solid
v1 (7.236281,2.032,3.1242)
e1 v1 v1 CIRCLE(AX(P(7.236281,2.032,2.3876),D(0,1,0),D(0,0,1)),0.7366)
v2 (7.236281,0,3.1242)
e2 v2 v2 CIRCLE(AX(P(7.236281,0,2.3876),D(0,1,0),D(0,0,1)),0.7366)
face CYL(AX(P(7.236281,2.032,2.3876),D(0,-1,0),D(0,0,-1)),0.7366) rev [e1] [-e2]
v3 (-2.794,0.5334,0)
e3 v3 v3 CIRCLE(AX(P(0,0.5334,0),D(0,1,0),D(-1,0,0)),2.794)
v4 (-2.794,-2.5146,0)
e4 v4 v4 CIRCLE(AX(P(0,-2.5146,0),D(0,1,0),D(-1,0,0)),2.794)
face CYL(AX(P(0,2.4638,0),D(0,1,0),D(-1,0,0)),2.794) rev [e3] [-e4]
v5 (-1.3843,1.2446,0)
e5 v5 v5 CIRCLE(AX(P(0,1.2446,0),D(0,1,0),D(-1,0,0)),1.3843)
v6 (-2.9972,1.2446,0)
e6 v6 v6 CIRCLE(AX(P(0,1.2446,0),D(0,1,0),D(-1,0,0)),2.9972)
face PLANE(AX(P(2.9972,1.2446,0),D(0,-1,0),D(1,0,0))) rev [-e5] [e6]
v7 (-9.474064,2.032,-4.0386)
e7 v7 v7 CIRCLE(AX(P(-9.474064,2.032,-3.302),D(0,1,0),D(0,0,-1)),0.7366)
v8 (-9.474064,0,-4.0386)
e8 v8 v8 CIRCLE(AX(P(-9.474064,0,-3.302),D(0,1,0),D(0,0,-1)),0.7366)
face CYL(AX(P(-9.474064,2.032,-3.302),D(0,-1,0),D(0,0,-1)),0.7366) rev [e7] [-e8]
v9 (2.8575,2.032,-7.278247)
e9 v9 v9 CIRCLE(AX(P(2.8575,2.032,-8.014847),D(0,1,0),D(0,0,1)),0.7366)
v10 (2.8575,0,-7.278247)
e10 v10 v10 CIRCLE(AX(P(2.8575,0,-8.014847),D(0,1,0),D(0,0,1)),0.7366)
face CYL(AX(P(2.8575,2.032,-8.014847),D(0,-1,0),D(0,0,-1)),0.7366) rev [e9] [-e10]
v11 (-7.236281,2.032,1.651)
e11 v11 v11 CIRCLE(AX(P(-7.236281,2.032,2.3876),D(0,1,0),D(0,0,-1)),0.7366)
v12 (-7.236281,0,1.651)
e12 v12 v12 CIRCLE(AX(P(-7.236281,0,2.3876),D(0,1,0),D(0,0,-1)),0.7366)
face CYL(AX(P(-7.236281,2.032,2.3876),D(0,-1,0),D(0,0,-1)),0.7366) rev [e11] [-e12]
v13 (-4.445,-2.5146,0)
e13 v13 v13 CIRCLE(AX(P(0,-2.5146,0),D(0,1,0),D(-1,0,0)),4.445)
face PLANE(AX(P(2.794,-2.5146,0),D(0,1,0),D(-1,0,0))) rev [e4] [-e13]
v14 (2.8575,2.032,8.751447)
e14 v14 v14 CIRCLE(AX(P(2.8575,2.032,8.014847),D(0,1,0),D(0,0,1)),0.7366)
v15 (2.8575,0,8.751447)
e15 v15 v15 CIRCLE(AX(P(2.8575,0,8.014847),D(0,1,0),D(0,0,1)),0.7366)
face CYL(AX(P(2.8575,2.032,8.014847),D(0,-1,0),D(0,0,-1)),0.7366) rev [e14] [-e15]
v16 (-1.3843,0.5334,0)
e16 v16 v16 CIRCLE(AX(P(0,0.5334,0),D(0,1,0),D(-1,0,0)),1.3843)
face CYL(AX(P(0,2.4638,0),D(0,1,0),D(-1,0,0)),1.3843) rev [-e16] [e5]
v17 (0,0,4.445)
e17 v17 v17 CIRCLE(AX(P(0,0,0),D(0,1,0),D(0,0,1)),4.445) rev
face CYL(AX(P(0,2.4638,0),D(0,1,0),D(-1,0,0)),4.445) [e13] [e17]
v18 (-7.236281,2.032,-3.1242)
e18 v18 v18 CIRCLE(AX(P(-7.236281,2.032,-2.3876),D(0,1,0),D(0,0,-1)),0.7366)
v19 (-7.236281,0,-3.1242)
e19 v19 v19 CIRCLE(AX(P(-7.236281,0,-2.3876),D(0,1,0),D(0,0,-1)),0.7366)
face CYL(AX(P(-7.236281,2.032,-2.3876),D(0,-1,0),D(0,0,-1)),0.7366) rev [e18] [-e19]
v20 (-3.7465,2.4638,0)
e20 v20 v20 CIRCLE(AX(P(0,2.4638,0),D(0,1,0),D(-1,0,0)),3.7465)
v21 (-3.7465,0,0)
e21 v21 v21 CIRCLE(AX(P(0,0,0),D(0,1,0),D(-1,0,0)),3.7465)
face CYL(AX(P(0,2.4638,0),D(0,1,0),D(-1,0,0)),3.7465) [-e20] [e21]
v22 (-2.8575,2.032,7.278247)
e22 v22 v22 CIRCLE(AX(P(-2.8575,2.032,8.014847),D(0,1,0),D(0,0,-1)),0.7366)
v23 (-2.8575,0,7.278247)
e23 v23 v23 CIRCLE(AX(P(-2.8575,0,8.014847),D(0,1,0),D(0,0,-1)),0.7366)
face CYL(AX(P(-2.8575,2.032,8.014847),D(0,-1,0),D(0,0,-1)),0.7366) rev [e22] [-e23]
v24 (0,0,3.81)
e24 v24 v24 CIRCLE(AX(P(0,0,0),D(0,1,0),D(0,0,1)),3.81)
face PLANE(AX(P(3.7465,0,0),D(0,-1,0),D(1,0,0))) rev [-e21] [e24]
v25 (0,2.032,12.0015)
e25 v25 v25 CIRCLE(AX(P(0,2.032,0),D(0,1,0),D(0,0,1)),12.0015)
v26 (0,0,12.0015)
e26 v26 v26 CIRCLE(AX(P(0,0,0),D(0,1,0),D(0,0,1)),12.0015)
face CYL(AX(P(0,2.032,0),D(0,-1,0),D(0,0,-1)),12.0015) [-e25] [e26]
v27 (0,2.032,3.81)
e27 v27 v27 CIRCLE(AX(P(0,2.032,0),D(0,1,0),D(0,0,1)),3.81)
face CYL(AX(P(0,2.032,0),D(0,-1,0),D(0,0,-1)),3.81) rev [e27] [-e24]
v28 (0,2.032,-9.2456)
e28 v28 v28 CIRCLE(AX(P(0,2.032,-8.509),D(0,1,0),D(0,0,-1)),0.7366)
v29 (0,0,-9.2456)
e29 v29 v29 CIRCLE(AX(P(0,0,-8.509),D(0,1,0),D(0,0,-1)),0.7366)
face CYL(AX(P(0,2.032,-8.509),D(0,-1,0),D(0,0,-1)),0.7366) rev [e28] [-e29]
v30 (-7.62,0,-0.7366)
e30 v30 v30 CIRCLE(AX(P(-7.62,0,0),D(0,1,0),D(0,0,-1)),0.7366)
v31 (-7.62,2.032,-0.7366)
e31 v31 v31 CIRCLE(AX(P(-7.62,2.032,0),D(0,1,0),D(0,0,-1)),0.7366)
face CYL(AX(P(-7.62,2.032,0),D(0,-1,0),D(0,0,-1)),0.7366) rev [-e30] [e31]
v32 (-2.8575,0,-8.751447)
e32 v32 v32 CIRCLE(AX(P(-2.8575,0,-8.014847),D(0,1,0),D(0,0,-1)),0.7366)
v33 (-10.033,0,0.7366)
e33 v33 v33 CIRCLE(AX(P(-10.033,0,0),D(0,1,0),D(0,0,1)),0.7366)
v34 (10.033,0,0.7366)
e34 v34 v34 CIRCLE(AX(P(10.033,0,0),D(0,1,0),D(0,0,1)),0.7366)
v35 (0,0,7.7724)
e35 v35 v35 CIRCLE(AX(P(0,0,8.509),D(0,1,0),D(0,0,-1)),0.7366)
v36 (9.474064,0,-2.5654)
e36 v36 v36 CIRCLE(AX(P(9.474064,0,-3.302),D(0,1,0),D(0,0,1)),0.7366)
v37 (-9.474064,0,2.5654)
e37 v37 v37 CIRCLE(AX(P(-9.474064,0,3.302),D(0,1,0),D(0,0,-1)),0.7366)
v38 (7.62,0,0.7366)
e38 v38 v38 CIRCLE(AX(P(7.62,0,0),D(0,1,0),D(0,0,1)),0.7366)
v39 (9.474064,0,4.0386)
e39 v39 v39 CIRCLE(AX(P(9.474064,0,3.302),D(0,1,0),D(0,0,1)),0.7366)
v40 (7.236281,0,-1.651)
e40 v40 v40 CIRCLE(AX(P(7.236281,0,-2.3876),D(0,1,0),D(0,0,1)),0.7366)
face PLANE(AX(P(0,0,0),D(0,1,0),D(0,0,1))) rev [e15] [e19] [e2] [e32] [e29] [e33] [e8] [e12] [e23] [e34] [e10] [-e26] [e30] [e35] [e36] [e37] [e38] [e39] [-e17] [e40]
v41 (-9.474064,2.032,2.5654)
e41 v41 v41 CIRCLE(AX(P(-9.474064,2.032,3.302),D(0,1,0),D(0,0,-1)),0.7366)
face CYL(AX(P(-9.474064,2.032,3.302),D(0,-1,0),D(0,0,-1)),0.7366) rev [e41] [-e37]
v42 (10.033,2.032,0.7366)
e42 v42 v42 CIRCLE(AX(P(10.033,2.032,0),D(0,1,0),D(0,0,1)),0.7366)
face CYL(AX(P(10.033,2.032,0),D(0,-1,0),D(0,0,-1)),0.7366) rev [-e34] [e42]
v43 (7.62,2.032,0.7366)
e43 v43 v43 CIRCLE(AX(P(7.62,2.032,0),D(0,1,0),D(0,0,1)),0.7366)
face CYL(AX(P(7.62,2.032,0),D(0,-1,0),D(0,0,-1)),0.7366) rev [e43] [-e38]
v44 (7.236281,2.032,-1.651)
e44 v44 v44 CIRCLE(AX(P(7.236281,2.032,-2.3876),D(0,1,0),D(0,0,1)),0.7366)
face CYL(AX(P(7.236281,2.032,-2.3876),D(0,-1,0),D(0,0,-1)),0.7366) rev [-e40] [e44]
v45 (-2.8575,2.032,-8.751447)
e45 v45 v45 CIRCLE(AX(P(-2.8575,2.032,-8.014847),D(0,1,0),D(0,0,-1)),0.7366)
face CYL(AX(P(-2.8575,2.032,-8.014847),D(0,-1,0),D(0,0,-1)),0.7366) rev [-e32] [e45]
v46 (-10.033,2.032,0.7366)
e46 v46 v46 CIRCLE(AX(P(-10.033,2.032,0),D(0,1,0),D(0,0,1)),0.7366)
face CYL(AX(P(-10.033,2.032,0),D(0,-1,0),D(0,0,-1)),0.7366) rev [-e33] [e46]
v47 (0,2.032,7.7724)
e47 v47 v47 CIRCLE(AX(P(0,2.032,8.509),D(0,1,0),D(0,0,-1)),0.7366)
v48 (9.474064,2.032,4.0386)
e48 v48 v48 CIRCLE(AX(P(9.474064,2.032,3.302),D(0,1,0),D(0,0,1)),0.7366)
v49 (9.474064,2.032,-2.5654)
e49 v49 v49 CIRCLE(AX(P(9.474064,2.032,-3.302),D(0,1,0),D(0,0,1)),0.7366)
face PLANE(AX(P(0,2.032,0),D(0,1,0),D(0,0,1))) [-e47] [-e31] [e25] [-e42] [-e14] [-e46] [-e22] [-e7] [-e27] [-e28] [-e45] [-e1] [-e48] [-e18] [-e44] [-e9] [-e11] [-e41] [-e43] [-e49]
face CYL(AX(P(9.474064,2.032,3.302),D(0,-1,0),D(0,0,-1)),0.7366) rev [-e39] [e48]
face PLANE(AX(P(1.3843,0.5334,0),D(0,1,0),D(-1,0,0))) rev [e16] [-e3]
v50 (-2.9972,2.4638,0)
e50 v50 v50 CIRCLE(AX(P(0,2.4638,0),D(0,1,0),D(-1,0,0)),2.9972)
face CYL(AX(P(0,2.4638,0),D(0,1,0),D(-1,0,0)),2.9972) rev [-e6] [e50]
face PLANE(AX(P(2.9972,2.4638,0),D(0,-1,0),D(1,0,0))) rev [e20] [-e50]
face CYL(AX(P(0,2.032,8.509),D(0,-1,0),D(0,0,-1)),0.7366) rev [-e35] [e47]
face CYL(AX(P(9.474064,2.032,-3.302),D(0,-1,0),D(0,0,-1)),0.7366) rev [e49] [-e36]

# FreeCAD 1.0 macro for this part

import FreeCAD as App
import Part
import Sketcher
Q = App.Units.Quantity

doc = App.newDocument("Part")
body = doc.addObject("PartDesign::Body", "Body")

# Sketch on XZ plane
sketch1 = doc.addObject("Sketcher::SketchObject", "Sketch")
body.addObject(sketch1)
sketch1.AttachmentSupport = (doc.XZ_Plane, [""])
sketch1.MapMode = "FlatFace"
sketch1.addGeometry(Part.Circle(App.Vector(0, 0, 0), App.Vector(0, 0, 1), 12), False)
sketch1.addGeometry(Part.Circle(App.Vector(-9.5, -3.3, 0), App.Vector(0, 0, 1), 0.7), False)
sketch1.addGeometry(Part.Circle(App.Vector(-7.2, -2.4, 0), App.Vector(0, 0, 1), 0.7), False)
sketch1.addGeometry(Part.Circle(App.Vector(-2.9, -8, 0), App.Vector(0, 0, 1), 0.7), False)
sketch1.addGeometry(Part.Circle(App.Vector(0, -8.5, 0), App.Vector(0, 0, 1), 0.7), False)
sketch1.addGeometry(Part.Circle(App.Vector(-10, 0, 0), App.Vector(0, 0, 1), 0.7), False)
sketch1.addGeometry(Part.Circle(App.Vector(-9.5, 3.3, 0), App.Vector(0, 0, 1), 0.7), False)
sketch1.addGeometry(Part.Circle(App.Vector(-7.6, 0, 0), App.Vector(0, 0, 1), 0.7), False)
sketch1.addGeometry(Part.Circle(App.Vector(-7.2, 2.4, 0), App.Vector(0, 0, 1), 0.7), False)
sketch1.addGeometry(Part.Circle(App.Vector(0, 0, 0), App.Vector(0, 0, 1), 3.8), False)
sketch1.addGeometry(Part.Circle(App.Vector(-2.9, 8, 0), App.Vector(0, 0, 1), 0.7), False)
sketch1.addGeometry(Part.Circle(App.Vector(2.9, -8, 0), App.Vector(0, 0, 1), 0.7), False)
sketch1.addGeometry(Part.Circle(App.Vector(7.2, -2.4, 0), App.Vector(0, 0, 1), 0.7), False)
sketch1.addGeometry(Part.Circle(App.Vector(7.6, 0, 0), App.Vector(0, 0, 1), 0.7), False)
sketch1.addGeometry(Part.Circle(App.Vector(9.5, -3.3, 0), App.Vector(0, 0, 1), 0.7), False)
sketch1.addGeometry(Part.Circle(App.Vector(10, 0, 0), App.Vector(0, 0, 1), 0.7), False)
sketch1.addGeometry(Part.Circle(App.Vector(0, 8.5, 0), App.Vector(0, 0, 1), 0.7), False)
sketch1.addGeometry(Part.Circle(App.Vector(2.9, 8, 0), App.Vector(0, 0, 1), 0.7), False)
sketch1.addGeometry(Part.Circle(App.Vector(7.2, 2.4, 0), App.Vector(0, 0, 1), 0.7), False)
sketch1.addGeometry(Part.Circle(App.Vector(9.5, 3.3, 0), App.Vector(0, 0, 1), 0.7), False)
sketch1.addConstraint(Sketcher.Constraint("Coincident", 0, 3, -1, 1))
sketch1.addConstraint(Sketcher.Constraint("Coincident", 9, 3, -1, 1))
sketch1.addConstraint(Sketcher.Constraint("Equal", 1, 2))
sketch1.addConstraint(Sketcher.Constraint("Equal", 2, 3))
sketch1.addConstraint(Sketcher.Constraint("Equal", 3, 4))
sketch1.addConstraint(Sketcher.Constraint("Equal", 4, 5))
sketch1.addConstraint(Sketcher.Constraint("Equal", 5, 6))
sketch1.addConstraint(Sketcher.Constraint("Equal", 6, 7))
sketch1.addConstraint(Sketcher.Constraint("Equal", 7, 8))
sketch1.addConstraint(Sketcher.Constraint("Equal", 8, 10))
sketch1.addConstraint(Sketcher.Constraint("Equal", 10, 11))
sketch1.addConstraint(Sketcher.Constraint("Equal", 11, 12))
sketch1.addConstraint(Sketcher.Constraint("Equal", 12, 13))
sketch1.addConstraint(Sketcher.Constraint("Equal", 13, 14))
sketch1.addConstraint(Sketcher.Constraint("Equal", 14, 15))
sketch1.addConstraint(Sketcher.Constraint("Equal", 15, 16))
sketch1.addConstraint(Sketcher.Constraint("Equal", 16, 17))
sketch1.addConstraint(Sketcher.Constraint("Equal", 17, 18))
sketch1.addConstraint(Sketcher.Constraint("Equal", 18, 19))
sketch1.addConstraint(Sketcher.Constraint("Symmetric", 10, 3, 11, 3, -1, 1))
sketch1.addConstraint(Sketcher.Constraint("Symmetric", 8, 3, 12, 3, -1, 1))
sketch1.addConstraint(Sketcher.Constraint("Symmetric", 7, 3, 13, 3, -1, 1))
sketch1.addConstraint(Sketcher.Constraint("Symmetric", 6, 3, 14, 3, -1, 1))
sketch1.addConstraint(Sketcher.Constraint("Symmetric", 5, 3, 15, 3, -1, 1))
sketch1.addConstraint(Sketcher.Constraint("Symmetric", 4, 3, 16, 3, -1, 1))
sketch1.addConstraint(Sketcher.Constraint("Symmetric", 3, 3, 17, 3, -1, 1))
sketch1.addConstraint(Sketcher.Constraint("Symmetric", 2, 3, 18, 3, -1, 1))
sketch1.addConstraint(Sketcher.Constraint("Symmetric", 1, 3, 19, 3, -1, 1))
sketch1.addConstraint(Sketcher.Constraint("Symmetric", 3, 3, 11, 3, -2))
sketch1.addConstraint(Sketcher.Constraint("Symmetric", 2, 3, 12, 3, -2))
sketch1.addConstraint(Sketcher.Constraint("Symmetric", 1, 3, 14, 3, -2))
sketch1.addConstraint(Sketcher.Constraint("PointOnObject", 4, 3, -2))
sketch1.addConstraint(Sketcher.Constraint("PointOnObject", 5, 3, -1))
sketch1.addConstraint(Sketcher.Constraint("PointOnObject", 7, 3, -1))
sketch1.addConstraint(Sketcher.Constraint("Diameter", 9, Q("0.3 in")))
sketch1.addConstraint(Sketcher.Constraint("Diameter", 0, Q("0.945 in")))
sketch1.addConstraint(Sketcher.Constraint("Diameter", 1, Q("0.058 in")))
sketch1.addConstraint(Sketcher.Constraint("DistanceX", 7, 3, -1, 1, Q("0.3 in")))
sketch1.addConstraint(Sketcher.Constraint("DistanceY", 1, 3, -1, 1, Q("0.13 in")))
sketch1.addConstraint(Sketcher.Constraint("DistanceY", 2, 3, -1, 1, Q("0.094 in")))
sketch1.addConstraint(Sketcher.Constraint("DistanceY", 4, 3, -1, 1, Q("0.335 in")))
sketch1.addConstraint(Sketcher.Constraint("DistanceX", 5, 3, -1, 1, Q("0.395 in")))
sketch1.addConstraint(Sketcher.Constraint("DistanceX", 7, 3, 10, 3, Q("0.1875 in")))
sketch1.addConstraint(Sketcher.Constraint("DistanceX", 2, 3, -1, 1, Q("7.236281 mm")))
sketch1.addConstraint(Sketcher.Constraint("DistanceX", 1, 3, -1, 1, Q("9.474064 mm")))
sketch1.addConstraint(Sketcher.Constraint("DistanceY", 3, 3, -1, 1, Q("8.014847 mm")))
pad1 = doc.addObject("PartDesign::Pad", "Pad")
body.addObject(pad1)
pad1.Profile = sketch1
pad1.Length = Q("0.08 in")
pad1.Reversed = True

# Sketch on XY plane
sketch2 = doc.addObject("Sketcher::SketchObject", "Sketch001")
body.addObject(sketch2)
sketch2.AttachmentSupport = (doc.XY_Plane, [""])
sketch2.MapMode = "FlatFace"
sketch2.addGeometry(Part.LineSegment(App.Vector(1.4, 0.5, 0), App.Vector(2.8, 0.5, 0)), False)
sketch2.addGeometry(Part.LineSegment(App.Vector(2.8, 0.5, 0), App.Vector(2.8, -2.5, 0)), False)
sketch2.addGeometry(Part.LineSegment(App.Vector(2.8, -2.5, 0), App.Vector(4.4, -2.5, 0)), False)
sketch2.addGeometry(Part.LineSegment(App.Vector(4.4, -2.5, 0), App.Vector(4.4, 0, 0)), False)
sketch2.addGeometry(Part.LineSegment(App.Vector(4.4, 0, 0), App.Vector(3.7, 0, 0)), False)
sketch2.addGeometry(Part.LineSegment(App.Vector(3.7, 0, 0), App.Vector(3.7, 2.5, 0)), False)
sketch2.addGeometry(Part.LineSegment(App.Vector(3.7, 2.5, 0), App.Vector(3, 2.5, 0)), False)
sketch2.addGeometry(Part.LineSegment(App.Vector(3, 2.5, 0), App.Vector(3, 1.2, 0)), False)
sketch2.addGeometry(Part.LineSegment(App.Vector(3, 1.2, 0), App.Vector(1.4, 1.2, 0)), False)
sketch2.addGeometry(Part.LineSegment(App.Vector(1.4, 1.2, 0), App.Vector(1.4, 0.5, 0)), False)
sketch2.addConstraint(Sketcher.Constraint("Coincident", 0, 2, 1, 1))
sketch2.addConstraint(Sketcher.Constraint("Coincident", 1, 2, 2, 1))
sketch2.addConstraint(Sketcher.Constraint("Coincident", 2, 2, 3, 1))
sketch2.addConstraint(Sketcher.Constraint("Coincident", 3, 2, 4, 1))
sketch2.addConstraint(Sketcher.Constraint("Coincident", 4, 2, 5, 1))
sketch2.addConstraint(Sketcher.Constraint("Coincident", 5, 2, 6, 1))
sketch2.addConstraint(Sketcher.Constraint("Coincident", 6, 2, 7, 1))
sketch2.addConstraint(Sketcher.Constraint("Coincident", 7, 2, 8, 1))
sketch2.addConstraint(Sketcher.Constraint("Coincident", 8, 2, 9, 1))
sketch2.addConstraint(Sketcher.Constraint("Coincident", 9, 2, 0, 1))
sketch2.addConstraint(Sketcher.Constraint("Horizontal", 0))
sketch2.addConstraint(Sketcher.Constraint("Vertical", 1))
sketch2.addConstraint(Sketcher.Constraint("Horizontal", 2))
sketch2.addConstraint(Sketcher.Constraint("Vertical", 3))
sketch2.addConstraint(Sketcher.Constraint("Horizontal", 4))
sketch2.addConstraint(Sketcher.Constraint("Vertical", 5))
sketch2.addConstraint(Sketcher.Constraint("Horizontal", 6))
sketch2.addConstraint(Sketcher.Constraint("Vertical", 7))
sketch2.addConstraint(Sketcher.Constraint("Horizontal", 8))
sketch2.addConstraint(Sketcher.Constraint("Vertical", 9))
sketch2.addConstraint(Sketcher.Constraint("PointOnObject", 3, 2, -1))
sketch2.addConstraint(Sketcher.Constraint("DistanceY", 1, 2, 1, 1, Q("0.12 in")))
sketch2.addConstraint(Sketcher.Constraint("DistanceX", 2, 1, 2, 2, Q("0.065 in")))
sketch2.addConstraint(Sketcher.Constraint("DistanceY", 3, 1, 3, 2, Q("0.099 in")))
sketch2.addConstraint(Sketcher.Constraint("DistanceY", 5, 1, 5, 2, Q("0.097 in")))
sketch2.addConstraint(Sketcher.Constraint("DistanceY", 7, 2, 7, 1, Q("0.048 in")))
sketch2.addConstraint(Sketcher.Constraint("DistanceX", -1, 1, 0, 2, Q("0.11 in")))
sketch2.addConstraint(Sketcher.Constraint("DistanceX", 0, 1, 0, 2, Q("0.0555 in")))
sketch2.addConstraint(Sketcher.Constraint("DistanceX", 4, 2, 4, 1, Q("0.0275 in")))
sketch2.addConstraint(Sketcher.Constraint("DistanceX", 6, 2, 6, 1, Q("0.0295 in")))
revolution = doc.addObject("PartDesign::Revolution", "Revolution")
body.addObject(revolution)
revolution.Profile = sketch2
revolution.ReferenceAxis = (sketch2, ["V_Axis"])
revolution.Angle = 360

doc.recompute()
